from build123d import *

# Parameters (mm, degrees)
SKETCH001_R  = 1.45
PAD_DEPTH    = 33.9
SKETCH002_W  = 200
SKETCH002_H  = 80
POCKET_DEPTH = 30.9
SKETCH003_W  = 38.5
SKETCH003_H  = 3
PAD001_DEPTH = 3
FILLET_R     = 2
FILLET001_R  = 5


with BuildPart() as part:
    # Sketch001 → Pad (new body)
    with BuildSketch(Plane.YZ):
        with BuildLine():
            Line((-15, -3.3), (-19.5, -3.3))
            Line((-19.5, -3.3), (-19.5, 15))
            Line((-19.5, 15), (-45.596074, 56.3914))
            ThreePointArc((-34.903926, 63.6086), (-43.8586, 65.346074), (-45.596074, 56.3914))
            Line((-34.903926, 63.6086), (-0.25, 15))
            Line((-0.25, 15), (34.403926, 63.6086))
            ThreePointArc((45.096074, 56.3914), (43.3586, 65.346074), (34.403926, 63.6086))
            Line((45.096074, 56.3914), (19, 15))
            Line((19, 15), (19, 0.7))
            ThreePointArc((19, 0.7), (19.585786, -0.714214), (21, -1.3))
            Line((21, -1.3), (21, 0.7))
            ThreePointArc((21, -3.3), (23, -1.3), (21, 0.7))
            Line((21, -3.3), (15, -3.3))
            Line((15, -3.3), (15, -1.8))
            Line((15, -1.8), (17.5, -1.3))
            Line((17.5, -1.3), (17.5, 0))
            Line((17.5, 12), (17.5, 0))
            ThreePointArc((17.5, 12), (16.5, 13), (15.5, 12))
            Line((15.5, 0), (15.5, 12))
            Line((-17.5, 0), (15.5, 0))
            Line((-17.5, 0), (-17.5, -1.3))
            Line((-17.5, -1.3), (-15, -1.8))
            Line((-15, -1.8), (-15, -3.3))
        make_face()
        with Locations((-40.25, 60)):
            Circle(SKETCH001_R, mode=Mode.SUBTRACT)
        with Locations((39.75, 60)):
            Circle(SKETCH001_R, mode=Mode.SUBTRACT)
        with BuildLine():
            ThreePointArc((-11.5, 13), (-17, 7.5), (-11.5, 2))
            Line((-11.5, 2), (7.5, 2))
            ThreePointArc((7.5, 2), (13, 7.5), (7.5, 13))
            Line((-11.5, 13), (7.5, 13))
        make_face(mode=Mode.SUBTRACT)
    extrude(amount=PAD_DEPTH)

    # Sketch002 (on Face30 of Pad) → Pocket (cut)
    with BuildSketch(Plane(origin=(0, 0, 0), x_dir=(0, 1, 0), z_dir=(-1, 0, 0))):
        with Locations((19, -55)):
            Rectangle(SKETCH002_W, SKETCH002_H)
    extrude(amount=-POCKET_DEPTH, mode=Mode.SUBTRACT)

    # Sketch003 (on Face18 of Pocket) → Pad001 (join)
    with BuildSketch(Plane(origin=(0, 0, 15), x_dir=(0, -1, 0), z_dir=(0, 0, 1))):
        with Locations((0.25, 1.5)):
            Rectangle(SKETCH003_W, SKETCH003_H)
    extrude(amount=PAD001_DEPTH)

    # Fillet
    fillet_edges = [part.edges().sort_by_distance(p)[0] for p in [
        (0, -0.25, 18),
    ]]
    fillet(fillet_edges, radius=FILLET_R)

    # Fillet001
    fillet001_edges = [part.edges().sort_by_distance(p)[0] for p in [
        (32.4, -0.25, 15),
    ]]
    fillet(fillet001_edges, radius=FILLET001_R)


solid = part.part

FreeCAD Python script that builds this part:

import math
import FreeCAD as App
import Part
import Sketcher


def edges_at(feature, points):
    """Names of the edges that pass closest to the given points."""
    edges = feature.Shape.Edges
    near = lambda p: min(range(len(edges)), key=lambda i: edges[i].distToShape(Part.Vertex(*p))[0])
    return sorted({f"Edge{near(p) + 1}" for p in points})


def add_polygon(sketch, points):
    """Adds a closed chain of lines whose ends are joined by coincident constraints."""
    first, n = sketch.GeometryCount, len(points)
    for a, b in zip(points, points[1:] + points[:1]):
        sketch.addGeometry(Part.LineSegment(App.Vector(*a, 0), App.Vector(*b, 0)), False)
    for i in range(n):
        sketch.addConstraint(Sketcher.Constraint("Coincident", first + i, 2, first + (i + 1) % n, 1))

doc = App.newDocument("Part")
body = doc.addObject("PartDesign::Body", "Body")

sketch1 = body.newObject("Sketcher::SketchObject", "Sketch")
sketch1.AttachmentSupport = (doc.getObject("YZ_Plane"), [""])
sketch1.MapMode = "FlatFace"
sketch1.addGeometry([
    Part.LineSegment(App.Vector(-19.5, -3.3, 0), App.Vector(-15, -3.3, 0)),
    Part.LineSegment(App.Vector(-15, -3.3, 0), App.Vector(-15, -1.8, 0)),
    Part.LineSegment(App.Vector(-15, -1.8, 0), App.Vector(-17.5, -1.3, 0)),
    Part.LineSegment(App.Vector(-17.5, -1.3, 0), App.Vector(-17.5, 0, 0)),
    Part.LineSegment(App.Vector(-17.5, 0, 0), App.Vector(15.5, 0, 0)),
    Part.LineSegment(App.Vector(15.5, 0, 0), App.Vector(15.5, 12, 0)),
    Part.ArcOfCircle(Part.Circle(App.Vector(16.5, 12, 0), App.Vector(0, 0, 1), 1), math.radians(0), math.radians(180)),
    Part.LineSegment(App.Vector(17.5, 12, 0), App.Vector(17.5, -1.3, 0)),
    Part.LineSegment(App.Vector(17.5, -1.3, 0), App.Vector(15, -1.8, 0)),
    Part.LineSegment(App.Vector(15, -1.8, 0), App.Vector(15, -3.3, 0)),
    Part.LineSegment(App.Vector(15, -3.3, 0), App.Vector(21, -3.3, 0)),
    Part.ArcOfCircle(Part.Circle(App.Vector(21, -1.3, 0), App.Vector(0, 0, 1), 2), math.radians(-90), math.radians(90)),
    Part.LineSegment(App.Vector(21, 0.7, 0), App.Vector(21, -1.3, 0)),
    Part.ArcOfCircle(Part.Circle(App.Vector(21, 0.7, 0), App.Vector(0, 0, 1), 2), math.radians(180), math.radians(270)),
    Part.LineSegment(App.Vector(19, 0.7, 0), App.Vector(19, 15, 0)),
    Part.LineSegment(App.Vector(19, 15, 0), App.Vector(45.1, 56.4, 0)),
    Part.ArcOfCircle(Part.Circle(App.Vector(39.8, 60, 0), App.Vector(0, 0, 1), 6.5), math.radians(-34), math.radians(146)),
    Part.LineSegment(App.Vector(34.4, 63.6, 0), App.Vector(-0.2, 15, 0)),
    Part.LineSegment(App.Vector(-0.2, 15, 0), App.Vector(-34.9, 63.6, 0)),
    Part.ArcOfCircle(Part.Circle(App.Vector(-40.2, 60, 0), App.Vector(0, 0, 1), 6.5), math.radians(34), math.radians(214)),
    Part.LineSegment(App.Vector(-45.6, 56.4, 0), App.Vector(-19.5, 15, 0)),
    Part.LineSegment(App.Vector(-19.5, 15, 0), App.Vector(-19.5, -3.3, 0)),
    Part.LineSegment(App.Vector(-11.5, 13, 0), App.Vector(7.5, 13, 0)),
    Part.ArcOfCircle(Part.Circle(App.Vector(7.5, 7.5, 0), App.Vector(0, 0, 1), 5.5), math.radians(-90), math.radians(90)),
    Part.LineSegment(App.Vector(7.5, 2, 0), App.Vector(-11.5, 2, 0)),
    Part.ArcOfCircle(Part.Circle(App.Vector(-11.5, 7.5, 0), App.Vector(0, 0, 1), 5.5), math.radians(90), math.radians(270)),
    Part.Circle(App.Vector(39.8, 60, 0), App.Vector(0, 0, 1), 1.4),
    Part.Circle(App.Vector(-40.2, 60, 0), App.Vector(0, 0, 1), 1.4),
], False)
sketch1.addConstraint([
    Sketcher.Constraint("Coincident", 0, 2, 1, 1),
    Sketcher.Constraint("Coincident", 1, 2, 2, 1),
    Sketcher.Constraint("Coincident", 2, 2, 3, 1),
    Sketcher.Constraint("Coincident", 3, 2, 4, 1),
    Sketcher.Constraint("Coincident", 4, 2, 5, 1),
    Sketcher.Constraint("Tangent", 5, 2, 6, 2),
    Sketcher.Constraint("Tangent", 6, 1, 7, 1),
    Sketcher.Constraint("Coincident", 7, 2, 8, 1),
    Sketcher.Constraint("Coincident", 8, 2, 9, 1),
    Sketcher.Constraint("Coincident", 9, 2, 10, 1),
    Sketcher.Constraint("Tangent", 10, 2, 11, 1),
    Sketcher.Constraint("Coincident", 11, 2, 12, 1),
    Sketcher.Constraint("Coincident", 12, 2, 13, 2),
    Sketcher.Constraint("Tangent", 13, 1, 14, 1),
    Sketcher.Constraint("Coincident", 14, 2, 15, 1),
    Sketcher.Constraint("Coincident", 15, 2, 16, 1),
    Sketcher.Constraint("Coincident", 16, 2, 17, 1),
    Sketcher.Constraint("Coincident", 17, 2, 18, 1),
    Sketcher.Constraint("Coincident", 18, 2, 19, 1),
    Sketcher.Constraint("Coincident", 19, 2, 20, 1),
    Sketcher.Constraint("Coincident", 20, 2, 21, 1),
    Sketcher.Constraint("Coincident", 21, 2, 0, 1),
    Sketcher.Constraint("Tangent", 22, 2, 23, 2),
    Sketcher.Constraint("Tangent", 23, 1, 24, 1),
    Sketcher.Constraint("Tangent", 24, 2, 25, 2),
    Sketcher.Constraint("Tangent", 25, 1, 22, 1),
    Sketcher.Constraint("Horizontal", 0),
    Sketcher.Constraint("Vertical", 1),
    Sketcher.Constraint("Vertical", 3),
    Sketcher.Constraint("Horizontal", 4),
    Sketcher.Constraint("Vertical", 5),
    Sketcher.Constraint("Vertical", 7),
    Sketcher.Constraint("Vertical", 9),
    Sketcher.Constraint("Horizontal", 10),
    Sketcher.Constraint("Vertical", 12),
    Sketcher.Constraint("Vertical", 14),
    Sketcher.Constraint("Vertical", 21),
    Sketcher.Constraint("Horizontal", 22),
    Sketcher.Constraint("Horizontal", 24),
    Sketcher.Constraint("Coincident", 26, 3, 16, 3),
    Sketcher.Constraint("Coincident", 27, 3, 19, 3),
    Sketcher.Constraint("Coincident", 11, 2, 13, 3),
    Sketcher.Constraint("Coincident", 12, 2, 11, 3),
    Sketcher.Constraint("Equal", 16, 19),
    Sketcher.Constraint("Equal", 26, 27),
    Sketcher.Constraint("Symmetric", 2, 2, 7, 2, -2),
    Sketcher.Constraint("Symmetric", 1, 2, 8, 2, -2),
    Sketcher.Constraint("PointOnObject", 3, 2, -1),
    Sketcher.Constraint("Horizontal", 16, 3, 19, 3),
    Sketcher.Constraint("Horizontal", 11, 3, 2, 2),
    Sketcher.Constraint("Horizontal", 0, 2, 9, 2),
    Sketcher.Constraint("Horizontal", 14, 2, 17, 2),
    Sketcher.Constraint("Horizontal", 16, 2, 18, 2),
    Sketcher.Constraint("Horizontal", 15, 2, 19, 2),
    Sketcher.Constraint("Horizontal", 17, 2, 20, 2),
    Sketcher.Constraint("Equal", 17, 18),
    Sketcher.Constraint("Equal", 15, 20),
    Sketcher.Constraint("Radius", 6, 1.0),
    Sketcher.Constraint("Radius", 11, 2.0),
    Sketcher.Constraint("Diameter", 26, 2.9),
    Sketcher.Constraint("Radius", 23, 5.5),
    Sketcher.Constraint("DistanceX", 4, 1, 4, 2, 33.0),
    Sketcher.Constraint("DistanceX", 10, 1, 10, 2, 6.0),
    Sketcher.Constraint("DistanceX", 22, 1, 22, 2, 19.0),
    Sketcher.Constraint("DistanceY", 5, 1, 5, 2, 12.0),
    Sketcher.Constraint("Radius", 16, 6.45),
    Sketcher.Constraint("DistanceX", 0, 1, 0, 2, 4.5),
    Sketcher.Constraint("DistanceY", 1, 1, 1, 2, 1.5),
    Sketcher.Constraint("DistanceY", 3, 1, 3, 2, 1.3),
    Sketcher.Constraint("DistanceY", 14, 1, 14, 2, 14.3),
    Sketcher.Constraint("DistanceX", -1, 1, 11, 3, 21.0),
    Sketcher.Constraint("DistanceY", -1, 1, 16, 3, 60.0),
    Sketcher.Constraint("DistanceY", -1, 1, 22, 2, 13.0),
    Sketcher.Constraint("DistanceX", 19, 3, 16, 3, 80.0),
    Sketcher.Constraint("DistanceX", 23, 3, 6, 3, 9.0),
    Sketcher.Constraint("DistanceY", -1, 1, 15, 2, 56.3914),
    Sketcher.Constraint("DistanceY", -1, 1, 16, 2, 63.6086),
])
pad1 = body.newObject("PartDesign::Pad", "Pad")
pad1.Profile = sketch1
pad1.Length = 33.9

sketch2 = body.newObject("Sketcher::SketchObject", "Sketch001")
sketch2.AttachmentSupport = (doc.getObject("YZ_Plane"), [""])
sketch2.MapMode = "FlatFace"
add_polygon(sketch2, [(-81, 15), (-81, 95), (119, 95), (119, 15)])
sketch2.addConstraint([
    Sketcher.Constraint("Vertical", 0),
    Sketcher.Constraint("Horizontal", 1),
    Sketcher.Constraint("Vertical", 2),
    Sketcher.Constraint("Horizontal", 3),
    Sketcher.Constraint("DistanceX", 1, 1, 1, 2, 200.0),
    Sketcher.Constraint("DistanceY", 0, 1, 0, 2, 80.0),
    Sketcher.Constraint("DistanceX", 0, 2, -1, 1, 81.0),
    Sketcher.Constraint("DistanceY", -1, 1, 0, 2, 95.0),
])
pocket1 = body.newObject("PartDesign::Pocket", "Pocket")
pocket1.Profile = sketch2
pocket1.Length = 30.9
pocket1.Reversed = True

sketch3 = body.newObject("Sketcher::SketchObject", "Sketch002")
sketch3.AttachmentSupport = (doc.getObject("XY_Plane"), [""])
sketch3.MapMode = "FlatFace"
sketch3.AttachmentOffset = App.Placement(App.Vector(0, 0, 15), App.Rotation())
add_polygon(sketch3, [(3, 19), (0, 19), (0, -19.5), (3, -19.5)])
sketch3.addConstraint([
    Sketcher.Constraint("Horizontal", 0),
    Sketcher.Constraint("Vertical", 1),
    Sketcher.Constraint("Horizontal", 2),
    Sketcher.Constraint("Vertical", 3),
    Sketcher.Constraint("PointOnObject", 0, 2, -2),
    Sketcher.Constraint("DistanceX", 0, 2, 0, 1, 3.0),
    Sketcher.Constraint("DistanceY", 1, 2, 1, 1, 38.5),
    Sketcher.Constraint("DistanceY", -1, 1, 0, 2, 19.0),
])
pad2 = body.newObject("PartDesign::Pad", "Pad001")
pad2.Profile = sketch3
pad2.Length = 3
doc.recompute()

fillet = body.newObject("PartDesign::Fillet", "Fillet")
fillet.Base = (pad2, edges_at(pad2, [(0, -0.25, 18)]))
fillet.Radius = 2
doc.recompute()

fillet2 = body.newObject("PartDesign::Fillet", "Fillet001")
fillet2.Base = (fillet, edges_at(fillet, [(32.4, -0.25, 15)]))
fillet2.Radius = 5

doc.recompute()
